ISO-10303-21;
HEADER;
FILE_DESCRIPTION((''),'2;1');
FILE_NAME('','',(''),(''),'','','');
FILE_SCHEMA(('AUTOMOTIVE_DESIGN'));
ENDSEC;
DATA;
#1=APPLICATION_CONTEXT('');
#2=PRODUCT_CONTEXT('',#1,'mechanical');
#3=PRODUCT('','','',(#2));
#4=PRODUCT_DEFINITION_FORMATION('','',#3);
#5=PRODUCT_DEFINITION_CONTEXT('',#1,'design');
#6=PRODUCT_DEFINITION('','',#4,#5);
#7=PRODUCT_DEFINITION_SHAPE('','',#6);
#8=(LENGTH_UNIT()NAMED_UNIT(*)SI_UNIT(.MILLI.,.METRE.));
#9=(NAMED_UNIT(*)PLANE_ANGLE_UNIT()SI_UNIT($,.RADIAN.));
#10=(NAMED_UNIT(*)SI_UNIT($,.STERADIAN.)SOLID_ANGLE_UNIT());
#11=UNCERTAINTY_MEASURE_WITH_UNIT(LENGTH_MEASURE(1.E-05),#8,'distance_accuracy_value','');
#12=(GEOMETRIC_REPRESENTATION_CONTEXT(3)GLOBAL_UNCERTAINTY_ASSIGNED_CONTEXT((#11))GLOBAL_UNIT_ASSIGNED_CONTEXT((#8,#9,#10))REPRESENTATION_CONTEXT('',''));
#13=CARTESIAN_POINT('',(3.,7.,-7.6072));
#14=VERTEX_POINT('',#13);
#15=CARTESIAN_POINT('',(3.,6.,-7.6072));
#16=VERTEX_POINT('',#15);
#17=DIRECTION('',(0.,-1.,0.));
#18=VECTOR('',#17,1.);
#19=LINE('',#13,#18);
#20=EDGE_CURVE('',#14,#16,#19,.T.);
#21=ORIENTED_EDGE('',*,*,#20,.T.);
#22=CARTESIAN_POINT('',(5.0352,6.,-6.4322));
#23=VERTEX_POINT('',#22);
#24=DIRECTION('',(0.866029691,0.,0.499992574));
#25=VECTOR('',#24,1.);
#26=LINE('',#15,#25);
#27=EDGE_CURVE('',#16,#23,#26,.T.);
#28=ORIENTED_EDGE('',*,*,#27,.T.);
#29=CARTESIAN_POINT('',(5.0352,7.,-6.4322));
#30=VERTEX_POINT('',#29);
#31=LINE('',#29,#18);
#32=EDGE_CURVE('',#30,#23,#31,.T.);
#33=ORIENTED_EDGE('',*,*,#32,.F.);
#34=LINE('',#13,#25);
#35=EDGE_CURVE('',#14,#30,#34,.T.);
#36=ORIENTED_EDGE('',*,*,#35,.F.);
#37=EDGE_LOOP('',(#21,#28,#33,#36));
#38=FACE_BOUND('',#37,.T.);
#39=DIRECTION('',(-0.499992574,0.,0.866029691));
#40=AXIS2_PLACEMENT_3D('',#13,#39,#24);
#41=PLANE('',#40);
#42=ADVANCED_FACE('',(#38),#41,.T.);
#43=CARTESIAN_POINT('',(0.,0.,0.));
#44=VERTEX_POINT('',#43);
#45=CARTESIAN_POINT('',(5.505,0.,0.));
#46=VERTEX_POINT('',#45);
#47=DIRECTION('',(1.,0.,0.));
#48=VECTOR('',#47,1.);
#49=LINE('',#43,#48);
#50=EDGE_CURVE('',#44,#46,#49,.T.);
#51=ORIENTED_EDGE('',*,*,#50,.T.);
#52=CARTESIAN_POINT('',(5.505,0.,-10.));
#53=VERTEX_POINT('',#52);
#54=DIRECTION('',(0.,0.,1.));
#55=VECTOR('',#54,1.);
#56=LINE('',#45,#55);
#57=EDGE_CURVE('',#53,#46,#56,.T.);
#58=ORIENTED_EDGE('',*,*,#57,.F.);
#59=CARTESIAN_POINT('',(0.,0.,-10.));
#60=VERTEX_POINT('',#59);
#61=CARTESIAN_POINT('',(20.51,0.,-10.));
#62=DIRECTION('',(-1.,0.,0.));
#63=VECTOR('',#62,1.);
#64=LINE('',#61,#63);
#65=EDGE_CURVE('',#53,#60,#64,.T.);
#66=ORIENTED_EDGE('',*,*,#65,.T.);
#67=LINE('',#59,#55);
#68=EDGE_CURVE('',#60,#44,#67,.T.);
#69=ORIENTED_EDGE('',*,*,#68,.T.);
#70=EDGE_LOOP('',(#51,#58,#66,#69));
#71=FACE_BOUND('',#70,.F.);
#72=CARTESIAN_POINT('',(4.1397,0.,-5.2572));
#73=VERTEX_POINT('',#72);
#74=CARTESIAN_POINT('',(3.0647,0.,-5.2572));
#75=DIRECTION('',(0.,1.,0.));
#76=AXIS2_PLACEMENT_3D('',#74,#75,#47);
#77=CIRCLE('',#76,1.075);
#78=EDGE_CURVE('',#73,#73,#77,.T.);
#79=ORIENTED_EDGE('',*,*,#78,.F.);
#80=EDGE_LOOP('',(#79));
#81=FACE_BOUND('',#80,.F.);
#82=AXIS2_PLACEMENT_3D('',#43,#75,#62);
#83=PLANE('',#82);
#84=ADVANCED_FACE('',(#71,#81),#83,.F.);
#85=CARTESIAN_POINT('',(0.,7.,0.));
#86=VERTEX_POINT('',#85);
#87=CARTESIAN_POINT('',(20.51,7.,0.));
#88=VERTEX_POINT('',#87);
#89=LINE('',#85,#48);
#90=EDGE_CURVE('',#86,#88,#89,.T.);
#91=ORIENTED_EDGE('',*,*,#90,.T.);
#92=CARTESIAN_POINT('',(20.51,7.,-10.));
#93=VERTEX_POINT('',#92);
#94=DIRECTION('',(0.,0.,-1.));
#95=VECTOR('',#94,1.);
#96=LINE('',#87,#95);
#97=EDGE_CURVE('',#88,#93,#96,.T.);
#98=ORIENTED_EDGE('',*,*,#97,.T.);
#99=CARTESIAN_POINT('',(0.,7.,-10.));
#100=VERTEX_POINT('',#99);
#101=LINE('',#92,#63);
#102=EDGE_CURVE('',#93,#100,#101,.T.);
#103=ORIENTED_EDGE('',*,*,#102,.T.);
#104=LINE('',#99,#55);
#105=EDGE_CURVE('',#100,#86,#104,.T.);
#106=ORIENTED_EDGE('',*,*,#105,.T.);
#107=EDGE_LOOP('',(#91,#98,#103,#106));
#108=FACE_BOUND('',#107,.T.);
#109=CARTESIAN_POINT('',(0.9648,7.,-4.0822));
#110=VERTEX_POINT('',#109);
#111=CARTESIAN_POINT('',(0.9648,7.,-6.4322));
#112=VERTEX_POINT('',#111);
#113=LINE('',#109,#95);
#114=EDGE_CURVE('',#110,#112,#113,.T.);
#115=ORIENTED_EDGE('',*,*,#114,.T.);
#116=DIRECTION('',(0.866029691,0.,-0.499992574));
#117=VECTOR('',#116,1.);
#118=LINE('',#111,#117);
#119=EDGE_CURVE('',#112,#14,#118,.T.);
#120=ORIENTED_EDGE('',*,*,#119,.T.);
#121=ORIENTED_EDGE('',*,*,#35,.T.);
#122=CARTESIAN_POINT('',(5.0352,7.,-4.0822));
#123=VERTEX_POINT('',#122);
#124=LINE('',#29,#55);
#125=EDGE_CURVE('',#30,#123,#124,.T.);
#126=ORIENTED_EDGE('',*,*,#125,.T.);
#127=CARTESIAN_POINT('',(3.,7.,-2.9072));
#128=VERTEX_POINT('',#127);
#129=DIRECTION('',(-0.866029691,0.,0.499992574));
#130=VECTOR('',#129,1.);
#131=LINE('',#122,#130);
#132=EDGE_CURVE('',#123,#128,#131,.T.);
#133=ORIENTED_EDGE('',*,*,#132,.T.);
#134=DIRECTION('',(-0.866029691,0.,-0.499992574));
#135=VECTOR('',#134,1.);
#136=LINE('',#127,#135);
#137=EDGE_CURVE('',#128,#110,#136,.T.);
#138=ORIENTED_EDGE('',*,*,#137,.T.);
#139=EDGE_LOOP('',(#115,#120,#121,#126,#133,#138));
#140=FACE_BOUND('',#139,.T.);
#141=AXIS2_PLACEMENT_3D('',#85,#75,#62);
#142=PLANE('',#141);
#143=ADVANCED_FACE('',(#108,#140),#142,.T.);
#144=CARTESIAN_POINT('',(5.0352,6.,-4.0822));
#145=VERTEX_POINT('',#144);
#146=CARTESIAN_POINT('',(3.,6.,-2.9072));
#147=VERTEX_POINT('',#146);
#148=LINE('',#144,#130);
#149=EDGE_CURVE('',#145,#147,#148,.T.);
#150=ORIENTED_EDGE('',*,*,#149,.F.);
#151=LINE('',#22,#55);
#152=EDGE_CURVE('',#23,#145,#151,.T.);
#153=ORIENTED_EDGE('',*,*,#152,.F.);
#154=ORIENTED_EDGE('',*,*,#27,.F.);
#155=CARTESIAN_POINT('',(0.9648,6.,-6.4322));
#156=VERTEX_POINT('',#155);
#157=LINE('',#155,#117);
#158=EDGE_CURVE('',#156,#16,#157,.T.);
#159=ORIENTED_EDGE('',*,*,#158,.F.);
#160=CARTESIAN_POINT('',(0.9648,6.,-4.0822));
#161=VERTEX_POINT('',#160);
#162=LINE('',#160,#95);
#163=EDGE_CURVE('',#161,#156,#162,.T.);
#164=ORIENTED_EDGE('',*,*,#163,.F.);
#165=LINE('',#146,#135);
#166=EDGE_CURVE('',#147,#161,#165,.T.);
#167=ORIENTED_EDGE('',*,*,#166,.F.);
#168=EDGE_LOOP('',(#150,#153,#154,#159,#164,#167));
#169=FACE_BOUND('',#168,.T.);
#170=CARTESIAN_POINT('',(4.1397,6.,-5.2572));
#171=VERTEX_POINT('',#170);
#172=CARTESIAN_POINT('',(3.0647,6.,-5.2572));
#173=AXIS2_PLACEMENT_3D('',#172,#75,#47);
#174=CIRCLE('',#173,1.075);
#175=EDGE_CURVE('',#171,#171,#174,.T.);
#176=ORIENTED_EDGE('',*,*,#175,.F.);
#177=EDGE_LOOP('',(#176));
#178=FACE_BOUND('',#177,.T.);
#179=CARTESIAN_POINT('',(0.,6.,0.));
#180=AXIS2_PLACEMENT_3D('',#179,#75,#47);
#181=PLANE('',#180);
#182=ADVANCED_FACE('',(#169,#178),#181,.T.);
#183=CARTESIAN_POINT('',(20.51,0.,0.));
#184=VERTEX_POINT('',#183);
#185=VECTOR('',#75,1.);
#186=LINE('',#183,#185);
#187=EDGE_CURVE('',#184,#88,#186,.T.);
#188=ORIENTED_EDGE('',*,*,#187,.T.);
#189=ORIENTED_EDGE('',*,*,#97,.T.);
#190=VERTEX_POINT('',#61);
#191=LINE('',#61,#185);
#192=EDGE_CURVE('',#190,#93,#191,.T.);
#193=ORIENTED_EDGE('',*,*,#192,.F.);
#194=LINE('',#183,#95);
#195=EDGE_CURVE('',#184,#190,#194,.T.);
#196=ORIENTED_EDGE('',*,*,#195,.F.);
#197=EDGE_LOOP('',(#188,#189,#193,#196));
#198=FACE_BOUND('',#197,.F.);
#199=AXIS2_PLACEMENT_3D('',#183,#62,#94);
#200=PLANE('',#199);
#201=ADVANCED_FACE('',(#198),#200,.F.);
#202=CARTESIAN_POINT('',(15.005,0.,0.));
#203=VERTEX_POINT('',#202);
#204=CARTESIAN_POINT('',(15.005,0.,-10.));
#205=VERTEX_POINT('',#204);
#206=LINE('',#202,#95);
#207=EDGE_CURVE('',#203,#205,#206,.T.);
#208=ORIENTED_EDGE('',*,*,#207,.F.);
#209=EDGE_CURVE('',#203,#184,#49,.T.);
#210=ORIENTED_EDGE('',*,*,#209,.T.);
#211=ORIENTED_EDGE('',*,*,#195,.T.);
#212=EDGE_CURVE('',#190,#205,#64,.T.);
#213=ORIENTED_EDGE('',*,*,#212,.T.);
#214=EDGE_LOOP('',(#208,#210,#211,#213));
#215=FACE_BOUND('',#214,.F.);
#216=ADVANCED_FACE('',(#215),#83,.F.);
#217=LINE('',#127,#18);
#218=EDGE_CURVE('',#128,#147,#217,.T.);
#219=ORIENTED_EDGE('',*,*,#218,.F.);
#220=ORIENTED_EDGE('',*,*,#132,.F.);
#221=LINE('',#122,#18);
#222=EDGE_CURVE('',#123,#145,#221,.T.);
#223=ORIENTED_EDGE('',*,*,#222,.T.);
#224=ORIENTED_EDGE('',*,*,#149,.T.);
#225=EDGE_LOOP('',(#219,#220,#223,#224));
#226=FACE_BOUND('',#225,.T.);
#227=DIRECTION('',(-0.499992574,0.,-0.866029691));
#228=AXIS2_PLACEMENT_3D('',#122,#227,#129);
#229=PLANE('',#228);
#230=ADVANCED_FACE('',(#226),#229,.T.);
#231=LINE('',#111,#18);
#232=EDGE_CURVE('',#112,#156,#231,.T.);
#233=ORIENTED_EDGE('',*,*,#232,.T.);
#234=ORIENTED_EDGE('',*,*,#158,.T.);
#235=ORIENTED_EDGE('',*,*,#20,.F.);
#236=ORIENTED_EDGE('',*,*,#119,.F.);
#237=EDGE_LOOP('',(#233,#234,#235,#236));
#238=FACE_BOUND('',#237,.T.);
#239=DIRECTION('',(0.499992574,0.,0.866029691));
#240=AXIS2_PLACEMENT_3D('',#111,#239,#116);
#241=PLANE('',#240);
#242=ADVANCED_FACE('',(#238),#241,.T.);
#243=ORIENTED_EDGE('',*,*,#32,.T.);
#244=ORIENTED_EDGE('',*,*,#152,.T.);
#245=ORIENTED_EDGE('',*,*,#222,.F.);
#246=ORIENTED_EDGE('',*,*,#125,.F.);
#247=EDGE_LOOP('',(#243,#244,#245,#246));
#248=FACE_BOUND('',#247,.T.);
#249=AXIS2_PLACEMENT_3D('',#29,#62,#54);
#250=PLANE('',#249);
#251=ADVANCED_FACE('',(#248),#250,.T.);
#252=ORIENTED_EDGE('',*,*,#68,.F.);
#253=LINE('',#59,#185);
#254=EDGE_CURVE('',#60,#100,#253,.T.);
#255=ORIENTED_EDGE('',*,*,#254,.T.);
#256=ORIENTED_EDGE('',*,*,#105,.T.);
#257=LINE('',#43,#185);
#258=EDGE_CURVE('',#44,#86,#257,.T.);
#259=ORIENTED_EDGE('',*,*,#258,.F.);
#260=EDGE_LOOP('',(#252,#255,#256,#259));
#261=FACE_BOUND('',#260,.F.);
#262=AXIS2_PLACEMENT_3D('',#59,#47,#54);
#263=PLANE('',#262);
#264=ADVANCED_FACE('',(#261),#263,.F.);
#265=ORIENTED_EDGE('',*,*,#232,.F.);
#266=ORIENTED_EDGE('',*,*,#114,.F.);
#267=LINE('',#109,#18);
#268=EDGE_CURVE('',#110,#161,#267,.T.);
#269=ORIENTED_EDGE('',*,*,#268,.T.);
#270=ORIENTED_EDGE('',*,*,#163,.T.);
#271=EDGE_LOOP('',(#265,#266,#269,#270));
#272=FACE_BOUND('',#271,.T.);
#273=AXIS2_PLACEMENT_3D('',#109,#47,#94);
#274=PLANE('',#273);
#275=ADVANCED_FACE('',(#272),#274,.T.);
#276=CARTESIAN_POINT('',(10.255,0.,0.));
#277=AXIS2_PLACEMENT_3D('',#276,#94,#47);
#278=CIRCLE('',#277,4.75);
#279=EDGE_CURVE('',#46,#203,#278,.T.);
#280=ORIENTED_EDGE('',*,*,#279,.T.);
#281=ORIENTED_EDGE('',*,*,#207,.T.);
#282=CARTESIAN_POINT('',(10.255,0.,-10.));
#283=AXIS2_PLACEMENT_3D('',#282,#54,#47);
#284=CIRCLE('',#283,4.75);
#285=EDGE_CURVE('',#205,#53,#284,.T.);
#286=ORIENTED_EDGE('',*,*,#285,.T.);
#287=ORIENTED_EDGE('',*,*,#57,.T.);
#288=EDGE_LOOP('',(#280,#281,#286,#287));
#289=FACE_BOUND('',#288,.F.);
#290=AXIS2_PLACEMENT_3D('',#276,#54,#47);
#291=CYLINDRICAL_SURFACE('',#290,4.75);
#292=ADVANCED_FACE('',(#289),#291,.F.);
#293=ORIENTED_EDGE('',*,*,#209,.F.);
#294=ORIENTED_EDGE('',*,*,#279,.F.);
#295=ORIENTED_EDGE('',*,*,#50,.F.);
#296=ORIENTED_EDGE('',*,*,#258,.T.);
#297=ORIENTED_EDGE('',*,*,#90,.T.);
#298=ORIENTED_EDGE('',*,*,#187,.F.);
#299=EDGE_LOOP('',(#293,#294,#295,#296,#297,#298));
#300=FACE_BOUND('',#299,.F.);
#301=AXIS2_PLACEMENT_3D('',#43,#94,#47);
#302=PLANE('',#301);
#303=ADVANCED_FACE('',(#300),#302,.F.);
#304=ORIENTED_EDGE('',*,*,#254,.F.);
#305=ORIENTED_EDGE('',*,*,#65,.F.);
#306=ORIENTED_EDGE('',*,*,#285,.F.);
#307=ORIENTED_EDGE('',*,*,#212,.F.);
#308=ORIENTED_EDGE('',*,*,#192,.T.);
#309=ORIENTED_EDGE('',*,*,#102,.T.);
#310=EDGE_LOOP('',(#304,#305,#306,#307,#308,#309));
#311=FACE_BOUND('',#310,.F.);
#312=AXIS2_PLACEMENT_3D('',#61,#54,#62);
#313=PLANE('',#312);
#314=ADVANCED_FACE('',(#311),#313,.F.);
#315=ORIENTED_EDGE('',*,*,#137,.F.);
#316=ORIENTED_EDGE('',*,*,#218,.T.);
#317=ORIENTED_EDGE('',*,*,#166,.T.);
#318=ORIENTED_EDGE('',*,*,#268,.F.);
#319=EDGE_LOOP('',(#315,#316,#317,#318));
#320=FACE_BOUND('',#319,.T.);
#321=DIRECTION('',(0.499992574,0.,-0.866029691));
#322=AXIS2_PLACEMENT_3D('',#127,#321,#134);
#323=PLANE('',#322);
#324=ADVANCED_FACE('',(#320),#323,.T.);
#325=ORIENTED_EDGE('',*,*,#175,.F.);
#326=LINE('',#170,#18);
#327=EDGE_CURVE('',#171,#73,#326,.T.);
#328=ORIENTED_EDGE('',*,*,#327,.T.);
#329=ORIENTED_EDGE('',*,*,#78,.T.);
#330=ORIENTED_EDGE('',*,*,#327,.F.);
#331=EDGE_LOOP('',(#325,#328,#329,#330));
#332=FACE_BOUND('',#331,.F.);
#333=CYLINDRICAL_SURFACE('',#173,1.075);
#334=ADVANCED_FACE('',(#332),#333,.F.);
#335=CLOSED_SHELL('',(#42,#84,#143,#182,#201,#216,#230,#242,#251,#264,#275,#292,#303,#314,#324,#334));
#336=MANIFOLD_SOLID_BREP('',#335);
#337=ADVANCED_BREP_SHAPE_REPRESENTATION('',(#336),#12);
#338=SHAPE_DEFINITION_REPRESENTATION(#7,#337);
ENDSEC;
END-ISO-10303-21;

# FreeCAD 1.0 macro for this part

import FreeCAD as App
import Part
import Sketcher
Q = App.Units.Quantity


def add_polygon(sketch, points):
    """Adds a closed chain of lines whose ends are joined by coincident constraints."""
    first, n = sketch.GeometryCount, len(points)
    for a, b in zip(points, points[1:] + points[:1]):
        sketch.addGeometry(Part.LineSegment(App.Vector(*a, 0), App.Vector(*b, 0)), False)
    for i in range(n):
        sketch.addConstraint(Sketcher.Constraint("Coincident", first + i, 2, first + (i + 1) % n, 1))

doc = App.newDocument("Part")
body = doc.addObject("PartDesign::Body", "Body")

# Sketch on XZ plane
sketch1 = doc.addObject("Sketcher::SketchObject", "Sketch")
body.addObject(sketch1)
sketch1.AttachmentSupport = (doc.XZ_Plane, [""])
sketch1.MapMode = "FlatFace"
add_polygon(sketch1, [(0, -10), (0, 0), (21, 0), (21, -10)])  # lines 0-3
sketch1.addConstraint([
    Sketcher.Constraint("Vertical", 0),
    Sketcher.Constraint("Horizontal", 1),
    Sketcher.Constraint("Vertical", 2),
    Sketcher.Constraint("Horizontal", 3),
    Sketcher.Constraint("Coincident", 0, 2, -1, 1),
    Sketcher.Constraint("DistanceY", 0, 1, 0, 2, 10.0),
    Sketcher.Constraint("DistanceX", 1, 1, 1, 2, 20.51),
])
pad1 = doc.addObject("PartDesign::Pad", "Pad")
body.addObject(pad1)
pad1.Profile = sketch1
pad1.Length = 7
pad1.Reversed = True

# Sketch on XY plane
sketch2 = doc.addObject("Sketcher::SketchObject", "Sketch001")
body.addObject(sketch2)
sketch2.AttachmentSupport = (doc.XY_Plane, [""])
sketch2.MapMode = "FlatFace"
sketch2.addGeometry(Part.Circle(App.Vector(10.3, 0, 0), App.Vector(0, 0, 1), 4.8), False)
sketch2.addConstraint([
    Sketcher.Constraint("PointOnObject", 0, 3, -1),
    Sketcher.Constraint("Diameter", 0, 9.5),
    Sketcher.Constraint("DistanceX", -1, 1, 0, 3, 10.255),
])
pocket1 = doc.addObject("PartDesign::Pocket", "Pocket")
body.addObject(pocket1)
pocket1.Profile = sketch2
pocket1.Type = "ThroughAll"

# Sketch on XZ plane
sketch3 = doc.addObject("Sketcher::SketchObject", "Sketch002")
body.addObject(sketch3)
sketch3.AttachmentSupport = (doc.XZ_Plane, [""])
sketch3.MapMode = "FlatFace"
sketch3.AttachmentOffset = App.Placement(App.Vector(0, 0, -7), App.Rotation())
add_polygon(sketch3, [(5, -6.4), (3, -7.6), (1, -6.4), (1, -4.1), (3, -2.9), (5, -4.1)])  # lines 0-5
sketch3.addConstraint([
    Sketcher.Constraint("Vertical", 2),
    Sketcher.Constraint("Vertical", 5),
    Sketcher.Constraint("Parallel", 0, 3),
    Sketcher.Constraint("Parallel", 1, 4),
    Sketcher.Constraint("Horizontal", 2, 2, 4, 2),
    Sketcher.Constraint("Horizontal", 1, 2, 5, 2),
    Sketcher.Constraint("Vertical", 0, 2, 3, 2),
    Sketcher.Constraint("Angle", 0, Q("-150.0005 deg")),
    Sketcher.Constraint("DistanceX", -1, 1, 0, 2, 3.0),
    Sketcher.Constraint("DistanceY", 2, 1, 2, 2, 2.35),
    Sketcher.Constraint("DistanceY", 0, 2, 3, 2, 4.7),
    Sketcher.Constraint("DistanceY", 0, 2, -1, 1, 7.6072),
])
pocket2 = doc.addObject("PartDesign::Pocket", "Pocket001")
body.addObject(pocket2)
pocket2.Profile = sketch3
pocket2.Length = 1
pocket2.Reversed = True

# Sketch on XZ plane
sketch4 = doc.addObject("Sketcher::SketchObject", "Sketch003")
body.addObject(sketch4)
sketch4.AttachmentSupport = (doc.XZ_Plane, [""])
sketch4.MapMode = "FlatFace"
sketch4.AttachmentOffset = App.Placement(App.Vector(0, 0, -6), App.Rotation())
sketch4.addGeometry(Part.Circle(App.Vector(3.1, -5.3, 0), App.Vector(0, 0, 1), 1.1), False)
sketch4.addConstraint([
    Sketcher.Constraint("Diameter", 0, 2.15),
    Sketcher.Constraint("DistanceX", -1, 1, 0, 3, 3.0647),
    Sketcher.Constraint("DistanceY", 0, 3, -1, 1, 5.2572),
])
pocket3 = doc.addObject("PartDesign::Pocket", "Pocket002")
body.addObject(pocket3)
pocket3.Profile = sketch4
pocket3.Type = "ThroughAll"
pocket3.Reversed = True

doc.recompute()
